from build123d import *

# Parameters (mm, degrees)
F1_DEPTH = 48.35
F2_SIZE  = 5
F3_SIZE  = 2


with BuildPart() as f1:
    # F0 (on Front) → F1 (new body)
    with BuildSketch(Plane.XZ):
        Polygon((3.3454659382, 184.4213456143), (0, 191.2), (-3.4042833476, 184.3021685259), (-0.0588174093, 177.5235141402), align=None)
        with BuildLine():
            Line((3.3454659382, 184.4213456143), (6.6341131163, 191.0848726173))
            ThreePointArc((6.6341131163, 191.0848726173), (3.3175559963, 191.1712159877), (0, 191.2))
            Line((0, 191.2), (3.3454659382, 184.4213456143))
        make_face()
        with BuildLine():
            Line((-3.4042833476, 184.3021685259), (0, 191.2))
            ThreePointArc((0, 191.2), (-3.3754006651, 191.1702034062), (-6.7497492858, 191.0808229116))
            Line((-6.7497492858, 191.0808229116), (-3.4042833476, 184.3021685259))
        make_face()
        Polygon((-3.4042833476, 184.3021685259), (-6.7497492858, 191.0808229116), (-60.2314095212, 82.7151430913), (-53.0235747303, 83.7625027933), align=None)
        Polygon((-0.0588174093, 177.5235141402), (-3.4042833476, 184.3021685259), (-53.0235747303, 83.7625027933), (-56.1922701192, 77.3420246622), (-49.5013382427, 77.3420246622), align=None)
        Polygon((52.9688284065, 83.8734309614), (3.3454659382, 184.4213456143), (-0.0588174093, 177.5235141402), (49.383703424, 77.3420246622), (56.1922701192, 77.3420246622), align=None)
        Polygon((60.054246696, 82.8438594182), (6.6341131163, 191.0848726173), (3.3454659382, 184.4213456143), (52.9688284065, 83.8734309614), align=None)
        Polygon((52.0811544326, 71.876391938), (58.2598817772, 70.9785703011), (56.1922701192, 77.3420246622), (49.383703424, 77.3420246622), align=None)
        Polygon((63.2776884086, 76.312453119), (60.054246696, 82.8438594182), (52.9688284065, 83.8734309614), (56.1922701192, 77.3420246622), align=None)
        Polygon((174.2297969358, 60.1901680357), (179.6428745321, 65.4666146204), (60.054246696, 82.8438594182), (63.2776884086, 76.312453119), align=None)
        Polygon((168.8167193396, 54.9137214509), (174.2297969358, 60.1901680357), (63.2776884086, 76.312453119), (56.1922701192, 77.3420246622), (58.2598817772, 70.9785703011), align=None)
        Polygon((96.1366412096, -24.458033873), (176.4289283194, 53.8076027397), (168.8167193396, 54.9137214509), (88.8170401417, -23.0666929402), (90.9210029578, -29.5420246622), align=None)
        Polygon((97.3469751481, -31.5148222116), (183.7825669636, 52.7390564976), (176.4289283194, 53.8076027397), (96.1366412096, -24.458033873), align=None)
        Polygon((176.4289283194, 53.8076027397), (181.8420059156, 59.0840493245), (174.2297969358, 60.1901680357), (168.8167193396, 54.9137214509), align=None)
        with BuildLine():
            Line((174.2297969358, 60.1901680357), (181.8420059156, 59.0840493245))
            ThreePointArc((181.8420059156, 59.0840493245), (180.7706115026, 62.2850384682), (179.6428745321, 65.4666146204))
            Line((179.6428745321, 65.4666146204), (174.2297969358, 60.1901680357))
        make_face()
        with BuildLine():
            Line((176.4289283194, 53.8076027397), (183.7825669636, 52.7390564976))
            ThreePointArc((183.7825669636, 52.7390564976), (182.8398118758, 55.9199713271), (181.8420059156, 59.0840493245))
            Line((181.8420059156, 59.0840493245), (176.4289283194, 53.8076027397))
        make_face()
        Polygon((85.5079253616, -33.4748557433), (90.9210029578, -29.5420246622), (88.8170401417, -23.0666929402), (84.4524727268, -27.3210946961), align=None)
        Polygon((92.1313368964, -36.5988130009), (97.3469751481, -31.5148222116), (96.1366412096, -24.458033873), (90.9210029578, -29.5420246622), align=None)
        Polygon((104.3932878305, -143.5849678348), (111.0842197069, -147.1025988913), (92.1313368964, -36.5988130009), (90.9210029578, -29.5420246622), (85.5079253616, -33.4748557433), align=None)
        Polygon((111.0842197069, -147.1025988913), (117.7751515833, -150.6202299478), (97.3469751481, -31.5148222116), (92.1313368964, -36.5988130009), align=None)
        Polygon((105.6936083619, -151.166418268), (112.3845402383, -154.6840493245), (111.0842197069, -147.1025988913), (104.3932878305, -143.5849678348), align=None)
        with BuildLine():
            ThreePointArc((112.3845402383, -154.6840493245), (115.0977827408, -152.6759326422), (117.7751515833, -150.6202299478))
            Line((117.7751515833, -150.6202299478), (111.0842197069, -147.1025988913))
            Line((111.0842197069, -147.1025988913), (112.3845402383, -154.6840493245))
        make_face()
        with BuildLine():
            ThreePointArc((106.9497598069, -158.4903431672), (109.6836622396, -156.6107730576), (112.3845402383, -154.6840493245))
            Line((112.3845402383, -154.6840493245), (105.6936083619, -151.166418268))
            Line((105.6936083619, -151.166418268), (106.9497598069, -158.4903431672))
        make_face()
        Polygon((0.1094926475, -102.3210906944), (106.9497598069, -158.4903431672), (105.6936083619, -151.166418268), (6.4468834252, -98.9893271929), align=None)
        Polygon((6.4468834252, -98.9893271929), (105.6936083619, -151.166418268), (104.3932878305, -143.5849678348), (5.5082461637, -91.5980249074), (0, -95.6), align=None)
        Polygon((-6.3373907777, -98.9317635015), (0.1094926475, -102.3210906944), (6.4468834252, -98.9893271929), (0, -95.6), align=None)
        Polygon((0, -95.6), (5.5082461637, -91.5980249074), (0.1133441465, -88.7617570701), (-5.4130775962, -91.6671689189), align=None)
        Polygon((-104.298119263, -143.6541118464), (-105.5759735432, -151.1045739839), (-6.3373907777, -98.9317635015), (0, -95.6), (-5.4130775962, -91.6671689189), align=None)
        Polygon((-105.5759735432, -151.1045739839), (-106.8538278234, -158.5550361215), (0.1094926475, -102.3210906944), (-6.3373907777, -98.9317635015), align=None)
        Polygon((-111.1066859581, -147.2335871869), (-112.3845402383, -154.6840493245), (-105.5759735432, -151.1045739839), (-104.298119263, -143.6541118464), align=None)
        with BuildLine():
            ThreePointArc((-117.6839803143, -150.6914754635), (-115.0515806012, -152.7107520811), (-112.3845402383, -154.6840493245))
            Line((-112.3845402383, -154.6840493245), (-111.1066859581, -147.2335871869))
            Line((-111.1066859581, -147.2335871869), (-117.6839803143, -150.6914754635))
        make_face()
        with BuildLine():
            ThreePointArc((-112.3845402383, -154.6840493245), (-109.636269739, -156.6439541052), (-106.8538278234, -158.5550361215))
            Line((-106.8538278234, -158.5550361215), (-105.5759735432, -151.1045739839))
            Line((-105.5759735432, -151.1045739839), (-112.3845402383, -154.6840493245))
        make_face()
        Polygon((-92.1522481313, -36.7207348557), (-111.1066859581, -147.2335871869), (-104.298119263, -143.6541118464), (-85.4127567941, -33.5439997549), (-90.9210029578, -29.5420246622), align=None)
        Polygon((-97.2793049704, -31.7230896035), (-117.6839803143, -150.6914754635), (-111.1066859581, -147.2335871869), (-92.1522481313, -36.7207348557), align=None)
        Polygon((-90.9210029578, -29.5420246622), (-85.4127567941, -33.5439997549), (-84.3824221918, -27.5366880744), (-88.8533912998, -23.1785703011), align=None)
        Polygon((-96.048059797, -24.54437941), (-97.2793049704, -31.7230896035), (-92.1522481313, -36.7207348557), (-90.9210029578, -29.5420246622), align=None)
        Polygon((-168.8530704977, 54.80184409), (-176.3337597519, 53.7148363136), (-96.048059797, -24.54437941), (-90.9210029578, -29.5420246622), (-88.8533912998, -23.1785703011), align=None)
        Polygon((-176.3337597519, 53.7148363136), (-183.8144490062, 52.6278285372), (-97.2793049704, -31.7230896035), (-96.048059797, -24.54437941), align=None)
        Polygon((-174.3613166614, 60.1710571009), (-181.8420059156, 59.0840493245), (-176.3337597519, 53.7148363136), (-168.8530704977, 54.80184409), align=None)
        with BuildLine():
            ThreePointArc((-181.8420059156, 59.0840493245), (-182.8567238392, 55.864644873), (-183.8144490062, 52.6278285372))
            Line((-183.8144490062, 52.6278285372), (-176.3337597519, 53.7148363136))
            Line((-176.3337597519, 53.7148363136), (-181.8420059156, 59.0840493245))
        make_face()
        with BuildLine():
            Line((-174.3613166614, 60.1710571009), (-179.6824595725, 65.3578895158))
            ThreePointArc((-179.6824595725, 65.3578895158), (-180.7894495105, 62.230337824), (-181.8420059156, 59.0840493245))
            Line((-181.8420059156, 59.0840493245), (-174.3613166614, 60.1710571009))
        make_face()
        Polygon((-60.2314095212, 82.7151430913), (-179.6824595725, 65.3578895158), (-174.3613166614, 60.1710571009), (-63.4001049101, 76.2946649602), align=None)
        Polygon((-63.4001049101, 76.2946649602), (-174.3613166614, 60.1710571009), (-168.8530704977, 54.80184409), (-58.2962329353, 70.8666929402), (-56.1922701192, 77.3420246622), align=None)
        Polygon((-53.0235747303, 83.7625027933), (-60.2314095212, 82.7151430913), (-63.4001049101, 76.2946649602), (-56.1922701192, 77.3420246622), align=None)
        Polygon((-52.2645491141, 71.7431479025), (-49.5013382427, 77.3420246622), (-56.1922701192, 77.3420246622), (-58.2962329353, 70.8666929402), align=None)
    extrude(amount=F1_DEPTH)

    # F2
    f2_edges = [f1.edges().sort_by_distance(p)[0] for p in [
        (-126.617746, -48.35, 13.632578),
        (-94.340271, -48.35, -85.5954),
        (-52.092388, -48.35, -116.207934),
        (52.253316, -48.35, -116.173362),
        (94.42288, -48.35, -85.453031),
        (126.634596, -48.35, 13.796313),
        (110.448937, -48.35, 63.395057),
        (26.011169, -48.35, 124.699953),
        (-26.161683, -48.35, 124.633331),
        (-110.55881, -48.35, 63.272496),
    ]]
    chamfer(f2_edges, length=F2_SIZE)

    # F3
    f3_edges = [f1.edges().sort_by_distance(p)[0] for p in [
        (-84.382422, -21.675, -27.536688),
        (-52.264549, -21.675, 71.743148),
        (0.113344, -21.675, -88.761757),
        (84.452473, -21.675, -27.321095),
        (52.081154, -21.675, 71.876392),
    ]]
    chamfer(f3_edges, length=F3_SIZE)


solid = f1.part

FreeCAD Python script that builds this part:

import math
import FreeCAD as App
import Part
import Sketcher

V = App.Vector


def edges_at(feature, points):
    """Names of the edges that pass closest to the given points."""
    edges = feature.Shape.Edges
    near = lambda p: min(range(len(edges)), key=lambda i: edges[i].distToShape(Part.Vertex(*p))[0])
    return sorted({f"Edge{near(p) + 1}" for p in points})


def add_polygon(sketch, points):
    """Adds a closed chain of lines whose ends are joined by coincident constraints."""
    first, n = sketch.GeometryCount, len(points)
    for a, b in zip(points, points[1:] + points[:1]):
        sketch.addGeometry(Part.LineSegment(App.Vector(*a, 0), App.Vector(*b, 0)), False)
    for i in range(n):
        sketch.addConstraint(Sketcher.Constraint("Coincident", first + i, 2, first + (i + 1) % n, 1))

doc = App.newDocument("Part")
body = doc.addObject("PartDesign::Body", "Body")

sketch1 = body.newObject("Sketcher::SketchObject", "Sketch")
sketch1.AttachmentSupport = (doc.getObject("XZ_Plane"), [""])
sketch1.MapMode = "FlatFace"
sketch1.addGeometry(Part.LineSegment(V(-6.749749, 191.080823, 0), V(-60.23141, 82.715143, 0)), False)
sketch1.addGeometry(Part.LineSegment(V(-60.23141, 82.715143, 0), V(-179.68246, 65.35789, 0)), False)
sketch1.addGeometry(Part.ArcOfCircle(Part.Circle(V(0, 0, 0), V(0, 0, 1), 191.2), math.radians(160.011595), math.radians(162)), False)
sketch1.addGeometry(Part.ArcOfCircle(Part.Circle(V(0, 0, 0), V(0, 0, 1), 191.2), math.radians(162), math.radians(164.023078)), False)
sketch1.addGeometry(Part.LineSegment(V(-183.814449, 52.627829, 0), V(-97.279305, -31.72309, 0)), False)
sketch1.addGeometry(Part.LineSegment(V(-97.279305, -31.72309, 0), V(-117.68398, -150.691475, 0)), False)
sketch1.addGeometry(Part.ArcOfCircle(Part.Circle(V(0, 0, 0), V(0, 0, 1), 191.2), math.radians(-127.988405), math.radians(-126)), False)
sketch1.addGeometry(Part.ArcOfCircle(Part.Circle(V(0, 0, 0), V(0, 0, 1), 191.2), math.radians(-126), math.radians(-123.976922)), False)
sketch1.addGeometry(Part.LineSegment(V(-106.853828, -158.555036, 0), V(0.109493, -102.321091, 0)), False)
sketch1.addGeometry(Part.LineSegment(V(0.109493, -102.321091, 0), V(106.94976, -158.490343, 0)), False)
sketch1.addGeometry(Part.ArcOfCircle(Part.Circle(V(0, 0, 0), V(0, 0, 1), 191.2), math.radians(-55.988405), math.radians(-54)), False)
sketch1.addGeometry(Part.ArcOfCircle(Part.Circle(V(0, 0, 0), V(0, 0, 1), 191.2), math.radians(-54), math.radians(-51.976922)), False)
sketch1.addGeometry(Part.LineSegment(V(117.775152, -150.62023, 0), V(97.346975, -31.514822, 0)), False)
sketch1.addGeometry(Part.LineSegment(V(97.346975, -31.514822, 0), V(183.782567, 52.739056, 0)), False)
sketch1.addGeometry(Part.ArcOfCircle(Part.Circle(V(0, 0, 0), V(0, 0, 1), 191.2), math.radians(16.011595), math.radians(18)), False)
sketch1.addGeometry(Part.ArcOfCircle(Part.Circle(V(0, 0, 0), V(0, 0, 1), 191.2), math.radians(18), math.radians(20.023078)), False)
sketch1.addGeometry(Part.LineSegment(V(179.642875, 65.466615, 0), V(60.054247, 82.843859, 0)), False)
sketch1.addGeometry(Part.LineSegment(V(60.054247, 82.843859, 0), V(6.634113, 191.084873, 0)), False)
sketch1.addGeometry(Part.ArcOfCircle(Part.Circle(V(0, 0, 0), V(0, 0, 1), 191.2), math.radians(88.011595), math.radians(90)), False)
sketch1.addGeometry(Part.ArcOfCircle(Part.Circle(V(0, 0, 0), V(0, 0, 1), 191.2), math.radians(90), math.radians(92.023078)), False)
add_polygon(sketch1, [(-49.501338, 77.342025), (-0.058817, 177.523514), (49.383703, 77.342025), (52.081154, 71.876392), (58.259882, 70.97857), (168.816719, 54.913721), (88.81704, -23.066693), (84.452473, -27.321095), (85.507925, -33.474856), (104.393288, -143.584968), (5.508246, -91.598025), (0.113344, -88.761757), (-5.413078, -91.667169), (-104.298119, -143.654112), (-85.412757, -33.544), (-84.382422, -27.536688), (-88.853391, -23.17857), (-168.85307, 54.801844), (-58.296233, 70.866693), (-52.264549, 71.743148)])
sketch1.addConstraint([
    Sketcher.Constraint("Coincident", 0, 2, 1, 1),
    Sketcher.Constraint("Coincident", 1, 2, 2, 1),
    Sketcher.Constraint("Coincident", 2, 2, 3, 1),
    Sketcher.Constraint("Coincident", 3, 2, 4, 1),
    Sketcher.Constraint("Coincident", 4, 2, 5, 1),
    Sketcher.Constraint("Coincident", 5, 2, 6, 1),
    Sketcher.Constraint("Coincident", 6, 2, 7, 1),
    Sketcher.Constraint("Coincident", 7, 2, 8, 1),
    Sketcher.Constraint("Coincident", 8, 2, 9, 1),
    Sketcher.Constraint("Coincident", 9, 2, 10, 1),
    Sketcher.Constraint("Coincident", 10, 2, 11, 1),
    Sketcher.Constraint("Coincident", 11, 2, 12, 1),
    Sketcher.Constraint("Coincident", 12, 2, 13, 1),
    Sketcher.Constraint("Coincident", 13, 2, 14, 1),
    Sketcher.Constraint("Coincident", 14, 2, 15, 1),
    Sketcher.Constraint("Coincident", 15, 2, 16, 1),
    Sketcher.Constraint("Coincident", 16, 2, 17, 1),
    Sketcher.Constraint("Coincident", 17, 2, 18, 1),
    Sketcher.Constraint("Coincident", 18, 2, 19, 1),
    Sketcher.Constraint("Coincident", 19, 2, 0, 1),
    Sketcher.Constraint("Coincident", 2, 3, -1, 1),
    Sketcher.Constraint("Coincident", 3, 3, -1, 1),
    Sketcher.Constraint("Coincident", 6, 3, -1, 1),
    Sketcher.Constraint("Coincident", 7, 3, -1, 1),
    Sketcher.Constraint("Coincident", 10, 3, -1, 1),
    Sketcher.Constraint("Coincident", 11, 3, -1, 1),
    Sketcher.Constraint("Coincident", 14, 3, -1, 1),
    Sketcher.Constraint("Coincident", 15, 3, -1, 1),
    Sketcher.Constraint("Coincident", 18, 3, -1, 1),
    Sketcher.Constraint("Coincident", 19, 3, -1, 1),
    Sketcher.Constraint("PointOnObject", 18, 2, -2),
    Sketcher.Constraint("Radius", 2, 191.2),
    Sketcher.Constraint("Radius", 6, 191.2),
    Sketcher.Constraint("Radius", 10, 191.2),
    Sketcher.Constraint("Radius", 14, 191.2),
    Sketcher.Constraint("Radius", 18, 191.2),
    Sketcher.Constraint("DistanceY", 33, 2, -1, 1, 33.544),
    Sketcher.Constraint("DistanceX", 12, 2, 15, 2, 82.295899),
    Sketcher.Constraint("DistanceY", 26, 2, 25, 2, 4.254402),
    Sketcher.Constraint("DistanceY", 4, 2, 34, 2, 4.186402),
    Sketcher.Constraint("DistanceY", 36, 2, 0, 2, 27.913299),
    Sketcher.Constraint("Distance", 1, 120.705541),
    Sketcher.Constraint("Distance", 5, 120.705541),
    Sketcher.Constraint("Distance", 9, 120.705541),
    Sketcher.Constraint("Distance", 13, 120.705541),
    Sketcher.Constraint("Distance", 17, 120.705541),
    Sketcher.Constraint("Distance", 20, 111.71792),
    Sketcher.Constraint("Distance", 21, 111.71792),
    Sketcher.Constraint("Distance", 22, 6.095029),
    Sketcher.Constraint("Distance", 24, 111.71792),
    Sketcher.Constraint("Distance", 25, 111.71792),
    Sketcher.Constraint("Distance", 26, 6.095029),
    Sketcher.Constraint("Distance", 28, 111.71792),
    Sketcher.Constraint("Distance", 29, 111.71792),
    Sketcher.Constraint("Distance", 30, 6.095029),
    Sketcher.Constraint("Distance", 32, 111.71792),
    Sketcher.Constraint("Distance", 33, 111.71792),
    Sketcher.Constraint("Distance", 34, 6.095029),
    Sketcher.Constraint("Distance", 36, 111.71792),
    Sketcher.Constraint("Distance", 37, 111.71792),
    Sketcher.Constraint("Distance", 38, 6.095029),
    Sketcher.Constraint("DistanceX", 0, 2, -1, 1, 60.23141),
    Sketcher.Constraint("DistanceX", 1, 2, -1, 1, 179.68246),
    Sketcher.Constraint("DistanceY", -1, 1, 2, 2, 59.084049),
    Sketcher.Constraint("DistanceX", 3, 2, -1, 1, 183.814449),
    Sketcher.Constraint("DistanceY", 4, 2, -1, 1, 31.72309),
    Sketcher.Constraint("DistanceX", 5, 2, -1, 1, 117.68398),
    Sketcher.Constraint("DistanceX", 6, 2, -1, 1, 112.38454),
    Sketcher.Constraint("DistanceY", 8, 2, -1, 1, 102.321091),
    Sketcher.Constraint("DistanceX", -1, 1, 9, 2, 106.94976),
    Sketcher.Constraint("DistanceX", -1, 1, 10, 2, 112.38454),
    Sketcher.Constraint("DistanceX", -1, 1, 11, 2, 117.775152),
    Sketcher.Constraint("DistanceY", -1, 1, 14, 2, 59.084049),
    Sketcher.Constraint("DistanceY", -1, 1, 16, 2, 82.843859),
    Sketcher.Constraint("DistanceX", 19, 2, -1, 1, 6.749749),
    Sketcher.Constraint("DistanceY", -1, 1, 22, 2, 71.876392),
    Sketcher.Constraint("DistanceX", -1, 1, 23, 2, 58.259882),
    Sketcher.Constraint("DistanceY", -1, 1, 23, 2, 70.97857),
    Sketcher.Constraint("DistanceX", -1, 1, 24, 2, 168.816719),
    Sketcher.Constraint("DistanceX", -1, 1, 25, 2, 88.81704),
    Sketcher.Constraint("DistanceY", 31, 2, -1, 1, 91.667169),
    Sketcher.Constraint("DistanceX", 32, 2, -1, 1, 104.298119),
    Sketcher.Constraint("DistanceY", 32, 2, -1, 1, 143.654112),
    Sketcher.Constraint("DistanceX", 35, 2, -1, 1, 88.853391),
    Sketcher.Constraint("DistanceY", 35, 2, -1, 1, 23.17857),
    Sketcher.Constraint("DistanceX", 38, 2, -1, 1, 52.264549),
    Sketcher.Constraint("DistanceX", 39, 2, -1, 1, 49.501338),
    Sketcher.Constraint("DistanceY", 7, 2, 5, 2, 7.863561),
    Sketcher.Constraint("DistanceY", 12, 2, 11, 3, 31.514822),
    Sketcher.Constraint("DistanceX", 12, 2, 13, 2, 86.435592),
    Sketcher.Constraint("DistanceY", 0, 2, 17, 2, 108.36973),
    Sketcher.Constraint("DistanceX", 19, 2, 20, 2, 6.690932),
    Sketcher.Constraint("DistanceY", 20, 2, 19, 2, 13.557309),
    Sketcher.Constraint("DistanceX", 21, 2, 22, 2, 2.697451),
    Sketcher.Constraint("DistanceY", 27, 2, 26, 2, 6.153761),
    Sketcher.Constraint("DistanceX", 27, 2, 12, 2, 11.83905),
    Sketcher.Constraint("DistanceX", 28, 2, 9, 2, 2.556472),
    Sketcher.Constraint("DistanceX", 8, 2, 30, 2, 0.003851),
    Sketcher.Constraint("DistanceY", 37, 2, 0, 2, 11.84845),
    Sketcher.Constraint("DistanceX", -1, 1, 29, 2, 5.508246),
])
pad1 = body.newObject("PartDesign::Pad", "Pad")
pad1.Profile = sketch1
pad1.Length = 48.35
doc.recompute()

chamfer = body.newObject("PartDesign::Chamfer", "Chamfer")
chamfer.Base = (pad1, edges_at(pad1, [
    (-128.853, -48.35, 15.812),
    (-94.855, -48.35, -88.599),
    (-54.856, -48.35, -117.661),
    (54.951, -48.35, -117.591),
    (94.951, -48.35, -88.53),
    (128.817, -48.35, 15.924),
    (113.538, -48.35, 62.946),
    (24.662, -48.35, 127.433),
    (-24.78, -48.35, 127.433),
    (-113.575, -48.35, 62.834),
]))
chamfer.Size = 5
doc.recompute()

chamfer2 = body.newObject("PartDesign::Chamfer", "Chamfer001")
chamfer2.Base = (chamfer, edges_at(chamfer, [
    (-84.382, -21.675, -27.537),
    (-52.265, -21.675, 71.743),
    (0.113, -21.675, -88.762),
    (84.452, -21.675, -27.321),
    (52.081, -21.675, 71.876),
]))
chamfer2.Size = 2

doc.recompute()
